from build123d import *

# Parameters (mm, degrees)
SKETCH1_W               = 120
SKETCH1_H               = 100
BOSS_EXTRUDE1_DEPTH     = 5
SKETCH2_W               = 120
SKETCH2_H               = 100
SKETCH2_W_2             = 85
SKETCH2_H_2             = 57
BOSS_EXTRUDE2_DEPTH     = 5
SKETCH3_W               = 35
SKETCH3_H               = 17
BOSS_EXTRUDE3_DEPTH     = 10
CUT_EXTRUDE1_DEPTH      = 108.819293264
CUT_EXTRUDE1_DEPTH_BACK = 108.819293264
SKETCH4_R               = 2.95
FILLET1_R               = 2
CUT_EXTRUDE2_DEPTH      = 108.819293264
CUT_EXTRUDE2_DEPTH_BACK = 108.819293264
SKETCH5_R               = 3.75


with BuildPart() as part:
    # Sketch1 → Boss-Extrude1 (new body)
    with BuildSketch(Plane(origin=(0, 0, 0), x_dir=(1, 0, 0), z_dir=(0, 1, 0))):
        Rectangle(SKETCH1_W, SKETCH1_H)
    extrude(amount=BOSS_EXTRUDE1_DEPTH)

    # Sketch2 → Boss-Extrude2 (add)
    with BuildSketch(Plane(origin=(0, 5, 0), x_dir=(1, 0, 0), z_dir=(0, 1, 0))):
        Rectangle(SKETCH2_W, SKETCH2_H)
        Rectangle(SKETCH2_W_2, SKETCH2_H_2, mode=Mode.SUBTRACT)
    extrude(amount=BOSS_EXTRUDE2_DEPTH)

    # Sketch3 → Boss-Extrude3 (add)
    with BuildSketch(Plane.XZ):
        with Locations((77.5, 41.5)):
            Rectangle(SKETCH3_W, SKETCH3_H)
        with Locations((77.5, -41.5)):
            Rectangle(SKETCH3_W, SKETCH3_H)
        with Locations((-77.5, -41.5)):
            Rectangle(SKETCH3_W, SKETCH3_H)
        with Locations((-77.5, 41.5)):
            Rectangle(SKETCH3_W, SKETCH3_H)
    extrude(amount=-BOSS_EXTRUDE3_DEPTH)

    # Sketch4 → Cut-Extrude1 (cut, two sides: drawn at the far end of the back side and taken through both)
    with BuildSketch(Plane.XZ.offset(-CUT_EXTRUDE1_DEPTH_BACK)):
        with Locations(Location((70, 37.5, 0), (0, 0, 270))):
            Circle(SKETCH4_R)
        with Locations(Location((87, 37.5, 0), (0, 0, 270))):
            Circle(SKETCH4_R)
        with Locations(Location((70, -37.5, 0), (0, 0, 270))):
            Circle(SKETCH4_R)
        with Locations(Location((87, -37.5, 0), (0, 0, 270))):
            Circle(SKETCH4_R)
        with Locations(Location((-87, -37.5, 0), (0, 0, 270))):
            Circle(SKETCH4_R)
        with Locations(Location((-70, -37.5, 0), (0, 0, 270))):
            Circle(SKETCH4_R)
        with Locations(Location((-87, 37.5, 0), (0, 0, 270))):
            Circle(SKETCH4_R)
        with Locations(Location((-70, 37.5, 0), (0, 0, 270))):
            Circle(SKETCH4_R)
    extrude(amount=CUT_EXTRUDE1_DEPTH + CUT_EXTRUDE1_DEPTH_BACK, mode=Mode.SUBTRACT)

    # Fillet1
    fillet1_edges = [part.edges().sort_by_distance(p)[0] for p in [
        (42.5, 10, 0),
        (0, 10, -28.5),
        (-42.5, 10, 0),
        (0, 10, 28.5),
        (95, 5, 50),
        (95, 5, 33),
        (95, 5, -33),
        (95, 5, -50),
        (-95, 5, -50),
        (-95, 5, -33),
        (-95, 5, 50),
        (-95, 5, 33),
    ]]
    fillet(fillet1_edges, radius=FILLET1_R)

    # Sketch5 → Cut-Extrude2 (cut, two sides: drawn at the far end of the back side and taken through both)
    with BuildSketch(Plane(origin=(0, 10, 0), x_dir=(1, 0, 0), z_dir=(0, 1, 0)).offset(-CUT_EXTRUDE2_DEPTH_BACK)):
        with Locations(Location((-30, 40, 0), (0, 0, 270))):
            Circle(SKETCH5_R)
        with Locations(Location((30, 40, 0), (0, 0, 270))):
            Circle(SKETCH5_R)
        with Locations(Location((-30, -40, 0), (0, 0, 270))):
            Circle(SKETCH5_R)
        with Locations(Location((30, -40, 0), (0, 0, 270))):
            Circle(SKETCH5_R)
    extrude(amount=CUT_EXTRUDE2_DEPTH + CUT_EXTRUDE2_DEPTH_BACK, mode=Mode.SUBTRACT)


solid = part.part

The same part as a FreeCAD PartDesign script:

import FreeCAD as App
import Part
import Sketcher
from FreeCAD import Vector


def edges_at(feature, points):
    """Names of the edges that pass closest to the given points."""
    edges = feature.Shape.Edges
    near = lambda p: min(range(len(edges)), key=lambda i: edges[i].distToShape(Part.Vertex(*p))[0])
    return sorted({f"Edge{near(p) + 1}" for p in points})


def add_polygon(sketch, points):
    """Adds a closed chain of lines whose ends are joined by coincident constraints."""
    first, n = sketch.GeometryCount, len(points)
    for a, b in zip(points, points[1:] + points[:1]):
        sketch.addGeometry(Part.LineSegment(App.Vector(*a, 0), App.Vector(*b, 0)), False)
    for i in range(n):
        sketch.addConstraint(Sketcher.Constraint("Coincident", first + i, 2, first + (i + 1) % n, 1))

doc = App.newDocument("Part")
body = doc.addObject("PartDesign::Body", "Body")

sketch1 = body.newObject("Sketcher::SketchObject", "Sketch")
sketch1.AttachmentSupport = (doc.getObject("XZ_Plane"), [""])
sketch1.MapMode = "FlatFace"
add_polygon(sketch1, [(-60, -50), (-60, 50), (60, 50), (60, -50)])
sketch1.addConstraint(Sketcher.Constraint("Vertical", 0))
sketch1.addConstraint(Sketcher.Constraint("Horizontal", 1))
sketch1.addConstraint(Sketcher.Constraint("Vertical", 2))
sketch1.addConstraint(Sketcher.Constraint("Horizontal", 3))
sketch1.addConstraint(Sketcher.Constraint("Symmetric", 0, 2, 2, 2, -1, 1))
sketch1.addConstraint(Sketcher.Constraint("DistanceX", 1, 1, 1, 2, 120.0))
sketch1.addConstraint(Sketcher.Constraint("DistanceY", 0, 1, 0, 2, 100.0))
pad1 = body.newObject("PartDesign::Pad", "Pad")
pad1.Profile = sketch1
pad1.Length = 5
pad1.Reversed = True

sketch2 = body.newObject("Sketcher::SketchObject", "Sketch001")
sketch2.AttachmentSupport = (doc.getObject("XZ_Plane"), [""])
sketch2.MapMode = "FlatFace"
sketch2.AttachmentOffset = App.Placement(Vector(0, 0, -5), App.Rotation())
add_polygon(sketch2, [(-60, -50), (-60, 50), (60, 50), (60, -50)])
add_polygon(sketch2, [(42.5, 28.5), (-42.5, 28.5), (-42.5, -28.5), (42.5, -28.5)])
sketch2.addConstraint(Sketcher.Constraint("Vertical", 0))
sketch2.addConstraint(Sketcher.Constraint("Horizontal", 1))
sketch2.addConstraint(Sketcher.Constraint("Vertical", 2))
sketch2.addConstraint(Sketcher.Constraint("Horizontal", 3))
sketch2.addConstraint(Sketcher.Constraint("Horizontal", 4))
sketch2.addConstraint(Sketcher.Constraint("Vertical", 5))
sketch2.addConstraint(Sketcher.Constraint("Horizontal", 6))
sketch2.addConstraint(Sketcher.Constraint("Vertical", 7))
sketch2.addConstraint(Sketcher.Constraint("Symmetric", 0, 2, 2, 2, -1, 1))
sketch2.addConstraint(Sketcher.Constraint("Symmetric", 4, 2, 6, 2, -1, 1))
sketch2.addConstraint(Sketcher.Constraint("DistanceX", 1, 1, 1, 2, 120.0))
sketch2.addConstraint(Sketcher.Constraint("DistanceX", 4, 2, 4, 1, 85.0))
sketch2.addConstraint(Sketcher.Constraint("DistanceY", 0, 1, 0, 2, 100.0))
sketch2.addConstraint(Sketcher.Constraint("DistanceY", 5, 2, 5, 1, 57.0))
pad2 = body.newObject("PartDesign::Pad", "Pad001")
pad2.Profile = sketch2
pad2.Length = 5
pad2.Reversed = True

sketch3 = body.newObject("Sketcher::SketchObject", "Sketch002")
sketch3.AttachmentSupport = (doc.getObject("XZ_Plane"), [""])
sketch3.MapMode = "FlatFace"
add_polygon(sketch3, [(60, 50), (60, 33), (95, 33), (95, 50)])
add_polygon(sketch3, [(60, -33), (60, -50), (95, -50), (95, -33)])
add_polygon(sketch3, [(-95, -33), (-95, -50), (-60, -50), (-60, -33)])
add_polygon(sketch3, [(-95, 50), (-95, 33), (-60, 33), (-60, 50)])
sketch3.addConstraint(Sketcher.Constraint("Vertical", 0))
sketch3.addConstraint(Sketcher.Constraint("Horizontal", 1))
sketch3.addConstraint(Sketcher.Constraint("Vertical", 2))
sketch3.addConstraint(Sketcher.Constraint("Horizontal", 3))
sketch3.addConstraint(Sketcher.Constraint("Vertical", 4))
sketch3.addConstraint(Sketcher.Constraint("Horizontal", 5))
sketch3.addConstraint(Sketcher.Constraint("Vertical", 6))
sketch3.addConstraint(Sketcher.Constraint("Horizontal", 7))
sketch3.addConstraint(Sketcher.Constraint("Vertical", 8))
sketch3.addConstraint(Sketcher.Constraint("Horizontal", 9))
sketch3.addConstraint(Sketcher.Constraint("Vertical", 10))
sketch3.addConstraint(Sketcher.Constraint("Horizontal", 11))
sketch3.addConstraint(Sketcher.Constraint("Vertical", 12))
sketch3.addConstraint(Sketcher.Constraint("Horizontal", 13))
sketch3.addConstraint(Sketcher.Constraint("Vertical", 14))
sketch3.addConstraint(Sketcher.Constraint("Horizontal", 15))
sketch3.addConstraint(Sketcher.Constraint("Symmetric", 2, 2, 8, 2, -1, 1))
sketch3.addConstraint(Sketcher.Constraint("Symmetric", 0, 2, 10, 2, -1, 1))
sketch3.addConstraint(Sketcher.Constraint("Symmetric", 6, 2, 12, 2, -1, 1))
sketch3.addConstraint(Sketcher.Constraint("Symmetric", 4, 2, 14, 2, -1, 1))
sketch3.addConstraint(Sketcher.Constraint("Symmetric", 5, 2, 8, 2, -2))
sketch3.addConstraint(Sketcher.Constraint("Symmetric", 7, 2, 10, 2, -2))
sketch3.addConstraint(Sketcher.Constraint("DistanceX", 1, 1, 1, 2, 35.0))
sketch3.addConstraint(Sketcher.Constraint("DistanceY", 0, 2, 0, 1, 17.0))
sketch3.addConstraint(Sketcher.Constraint("DistanceX", -1, 1, 0, 2, 60.0))
sketch3.addConstraint(Sketcher.Constraint("DistanceY", -1, 1, 0, 2, 33.0))
pad3 = body.newObject("PartDesign::Pad", "Pad002")
pad3.Profile = sketch3
pad3.Length = 10
pad3.Reversed = True

sketch4 = body.newObject("Sketcher::SketchObject", "Sketch003")
sketch4.AttachmentSupport = (doc.getObject("XZ_Plane"), [""])
sketch4.MapMode = "FlatFace"
sketch4.addGeometry(Part.Circle(Vector(70, 37.5, 0), Vector(0, 0, 1), 2.95), False)
sketch4.addGeometry(Part.Circle(Vector(87, 37.5, 0), Vector(0, 0, 1), 2.95), False)
sketch4.addGeometry(Part.Circle(Vector(70, -37.5, 0), Vector(0, 0, 1), 2.95), False)
sketch4.addGeometry(Part.Circle(Vector(87, -37.5, 0), Vector(0, 0, 1), 2.95), False)
sketch4.addGeometry(Part.Circle(Vector(-87, -37.5, 0), Vector(0, 0, 1), 2.95), False)
sketch4.addGeometry(Part.Circle(Vector(-70, -37.5, 0), Vector(0, 0, 1), 2.95), False)
sketch4.addGeometry(Part.Circle(Vector(-87, 37.5, 0), Vector(0, 0, 1), 2.95), False)
sketch4.addGeometry(Part.Circle(Vector(-70, 37.5, 0), Vector(0, 0, 1), 2.95), False)
sketch4.addConstraint(Sketcher.Constraint("Equal", 0, 1))
sketch4.addConstraint(Sketcher.Constraint("Equal", 1, 2))
sketch4.addConstraint(Sketcher.Constraint("Equal", 2, 3))
sketch4.addConstraint(Sketcher.Constraint("Equal", 3, 4))
sketch4.addConstraint(Sketcher.Constraint("Equal", 4, 5))
sketch4.addConstraint(Sketcher.Constraint("Equal", 5, 6))
sketch4.addConstraint(Sketcher.Constraint("Equal", 6, 7))
sketch4.addConstraint(Sketcher.Constraint("Symmetric", 1, 3, 4, 3, -1, 1))
sketch4.addConstraint(Sketcher.Constraint("Symmetric", 0, 3, 5, 3, -1, 1))
sketch4.addConstraint(Sketcher.Constraint("Symmetric", 3, 3, 6, 3, -1, 1))
sketch4.addConstraint(Sketcher.Constraint("Symmetric", 2, 3, 7, 3, -1, 1))
sketch4.addConstraint(Sketcher.Constraint("Symmetric", 3, 3, 4, 3, -2))
sketch4.addConstraint(Sketcher.Constraint("Symmetric", 2, 3, 5, 3, -2))
sketch4.addConstraint(Sketcher.Constraint("Horizontal", 0, 3, 1, 3))
sketch4.addConstraint(Sketcher.Constraint("Diameter", 0, 5.9))
sketch4.addConstraint(Sketcher.Constraint("DistanceX", -1, 1, 0, 3, 70.0))
sketch4.addConstraint(Sketcher.Constraint("DistanceX", -1, 1, 1, 3, 87.0))
sketch4.addConstraint(Sketcher.Constraint("DistanceY", 2, 3, 0, 3, 75.0))
pocket1 = body.newObject("PartDesign::Pocket", "Pocket")
pocket1.Profile = sketch4
pocket1.Type = "ThroughAll"
pocket1.Midplane = True
doc.recompute()

fillet = body.newObject("PartDesign::Fillet", "Fillet")
fillet.Base = (pocket1, edges_at(pocket1, [
    (42.5, 10, 0),
    (0, 10, -28.5),
    (-42.5, 10, 0),
    (0, 10, 28.5),
    (95, 5, 50),
    (95, 5, 33),
    (95, 5, -33),
    (95, 5, -50),
    (-95, 5, -50),
    (-95, 5, -33),
    (-95, 5, 50),
    (-95, 5, 33),
]))
fillet.Radius = 2

sketch5 = body.newObject("Sketcher::SketchObject", "Sketch004")
sketch5.AttachmentSupport = (doc.getObject("XZ_Plane"), [""])
sketch5.MapMode = "FlatFace"
sketch5.AttachmentOffset = App.Placement(Vector(0, 0, -10), App.Rotation())
sketch5.addGeometry(Part.Circle(Vector(-30, -40, 0), Vector(0, 0, 1), 3.75), False)
sketch5.addGeometry(Part.Circle(Vector(30, -40, 0), Vector(0, 0, 1), 3.75), False)
sketch5.addGeometry(Part.Circle(Vector(-30, 40, 0), Vector(0, 0, 1), 3.75), False)
sketch5.addGeometry(Part.Circle(Vector(30, 40, 0), Vector(0, 0, 1), 3.75), False)
sketch5.addConstraint(Sketcher.Constraint("Equal", 0, 1))
sketch5.addConstraint(Sketcher.Constraint("Equal", 1, 2))
sketch5.addConstraint(Sketcher.Constraint("Equal", 2, 3))
sketch5.addConstraint(Sketcher.Constraint("Symmetric", 1, 3, 2, 3, -1, 1))
sketch5.addConstraint(Sketcher.Constraint("Symmetric", 0, 3, 3, 3, -1, 1))
sketch5.addConstraint(Sketcher.Constraint("Symmetric", 0, 3, 1, 3, -2))
sketch5.addConstraint(Sketcher.Constraint("Diameter", 0, 7.5))
sketch5.addConstraint(Sketcher.Constraint("DistanceX", 0, 3, -1, 1, 30.0))
sketch5.addConstraint(Sketcher.Constraint("DistanceY", 0, 3, -1, 1, 40.0))
pocket2 = body.newObject("PartDesign::Pocket", "Pocket001")
pocket2.Profile = sketch5
pocket2.Type = "ThroughAll"
pocket2.Midplane = True

doc.recompute()
